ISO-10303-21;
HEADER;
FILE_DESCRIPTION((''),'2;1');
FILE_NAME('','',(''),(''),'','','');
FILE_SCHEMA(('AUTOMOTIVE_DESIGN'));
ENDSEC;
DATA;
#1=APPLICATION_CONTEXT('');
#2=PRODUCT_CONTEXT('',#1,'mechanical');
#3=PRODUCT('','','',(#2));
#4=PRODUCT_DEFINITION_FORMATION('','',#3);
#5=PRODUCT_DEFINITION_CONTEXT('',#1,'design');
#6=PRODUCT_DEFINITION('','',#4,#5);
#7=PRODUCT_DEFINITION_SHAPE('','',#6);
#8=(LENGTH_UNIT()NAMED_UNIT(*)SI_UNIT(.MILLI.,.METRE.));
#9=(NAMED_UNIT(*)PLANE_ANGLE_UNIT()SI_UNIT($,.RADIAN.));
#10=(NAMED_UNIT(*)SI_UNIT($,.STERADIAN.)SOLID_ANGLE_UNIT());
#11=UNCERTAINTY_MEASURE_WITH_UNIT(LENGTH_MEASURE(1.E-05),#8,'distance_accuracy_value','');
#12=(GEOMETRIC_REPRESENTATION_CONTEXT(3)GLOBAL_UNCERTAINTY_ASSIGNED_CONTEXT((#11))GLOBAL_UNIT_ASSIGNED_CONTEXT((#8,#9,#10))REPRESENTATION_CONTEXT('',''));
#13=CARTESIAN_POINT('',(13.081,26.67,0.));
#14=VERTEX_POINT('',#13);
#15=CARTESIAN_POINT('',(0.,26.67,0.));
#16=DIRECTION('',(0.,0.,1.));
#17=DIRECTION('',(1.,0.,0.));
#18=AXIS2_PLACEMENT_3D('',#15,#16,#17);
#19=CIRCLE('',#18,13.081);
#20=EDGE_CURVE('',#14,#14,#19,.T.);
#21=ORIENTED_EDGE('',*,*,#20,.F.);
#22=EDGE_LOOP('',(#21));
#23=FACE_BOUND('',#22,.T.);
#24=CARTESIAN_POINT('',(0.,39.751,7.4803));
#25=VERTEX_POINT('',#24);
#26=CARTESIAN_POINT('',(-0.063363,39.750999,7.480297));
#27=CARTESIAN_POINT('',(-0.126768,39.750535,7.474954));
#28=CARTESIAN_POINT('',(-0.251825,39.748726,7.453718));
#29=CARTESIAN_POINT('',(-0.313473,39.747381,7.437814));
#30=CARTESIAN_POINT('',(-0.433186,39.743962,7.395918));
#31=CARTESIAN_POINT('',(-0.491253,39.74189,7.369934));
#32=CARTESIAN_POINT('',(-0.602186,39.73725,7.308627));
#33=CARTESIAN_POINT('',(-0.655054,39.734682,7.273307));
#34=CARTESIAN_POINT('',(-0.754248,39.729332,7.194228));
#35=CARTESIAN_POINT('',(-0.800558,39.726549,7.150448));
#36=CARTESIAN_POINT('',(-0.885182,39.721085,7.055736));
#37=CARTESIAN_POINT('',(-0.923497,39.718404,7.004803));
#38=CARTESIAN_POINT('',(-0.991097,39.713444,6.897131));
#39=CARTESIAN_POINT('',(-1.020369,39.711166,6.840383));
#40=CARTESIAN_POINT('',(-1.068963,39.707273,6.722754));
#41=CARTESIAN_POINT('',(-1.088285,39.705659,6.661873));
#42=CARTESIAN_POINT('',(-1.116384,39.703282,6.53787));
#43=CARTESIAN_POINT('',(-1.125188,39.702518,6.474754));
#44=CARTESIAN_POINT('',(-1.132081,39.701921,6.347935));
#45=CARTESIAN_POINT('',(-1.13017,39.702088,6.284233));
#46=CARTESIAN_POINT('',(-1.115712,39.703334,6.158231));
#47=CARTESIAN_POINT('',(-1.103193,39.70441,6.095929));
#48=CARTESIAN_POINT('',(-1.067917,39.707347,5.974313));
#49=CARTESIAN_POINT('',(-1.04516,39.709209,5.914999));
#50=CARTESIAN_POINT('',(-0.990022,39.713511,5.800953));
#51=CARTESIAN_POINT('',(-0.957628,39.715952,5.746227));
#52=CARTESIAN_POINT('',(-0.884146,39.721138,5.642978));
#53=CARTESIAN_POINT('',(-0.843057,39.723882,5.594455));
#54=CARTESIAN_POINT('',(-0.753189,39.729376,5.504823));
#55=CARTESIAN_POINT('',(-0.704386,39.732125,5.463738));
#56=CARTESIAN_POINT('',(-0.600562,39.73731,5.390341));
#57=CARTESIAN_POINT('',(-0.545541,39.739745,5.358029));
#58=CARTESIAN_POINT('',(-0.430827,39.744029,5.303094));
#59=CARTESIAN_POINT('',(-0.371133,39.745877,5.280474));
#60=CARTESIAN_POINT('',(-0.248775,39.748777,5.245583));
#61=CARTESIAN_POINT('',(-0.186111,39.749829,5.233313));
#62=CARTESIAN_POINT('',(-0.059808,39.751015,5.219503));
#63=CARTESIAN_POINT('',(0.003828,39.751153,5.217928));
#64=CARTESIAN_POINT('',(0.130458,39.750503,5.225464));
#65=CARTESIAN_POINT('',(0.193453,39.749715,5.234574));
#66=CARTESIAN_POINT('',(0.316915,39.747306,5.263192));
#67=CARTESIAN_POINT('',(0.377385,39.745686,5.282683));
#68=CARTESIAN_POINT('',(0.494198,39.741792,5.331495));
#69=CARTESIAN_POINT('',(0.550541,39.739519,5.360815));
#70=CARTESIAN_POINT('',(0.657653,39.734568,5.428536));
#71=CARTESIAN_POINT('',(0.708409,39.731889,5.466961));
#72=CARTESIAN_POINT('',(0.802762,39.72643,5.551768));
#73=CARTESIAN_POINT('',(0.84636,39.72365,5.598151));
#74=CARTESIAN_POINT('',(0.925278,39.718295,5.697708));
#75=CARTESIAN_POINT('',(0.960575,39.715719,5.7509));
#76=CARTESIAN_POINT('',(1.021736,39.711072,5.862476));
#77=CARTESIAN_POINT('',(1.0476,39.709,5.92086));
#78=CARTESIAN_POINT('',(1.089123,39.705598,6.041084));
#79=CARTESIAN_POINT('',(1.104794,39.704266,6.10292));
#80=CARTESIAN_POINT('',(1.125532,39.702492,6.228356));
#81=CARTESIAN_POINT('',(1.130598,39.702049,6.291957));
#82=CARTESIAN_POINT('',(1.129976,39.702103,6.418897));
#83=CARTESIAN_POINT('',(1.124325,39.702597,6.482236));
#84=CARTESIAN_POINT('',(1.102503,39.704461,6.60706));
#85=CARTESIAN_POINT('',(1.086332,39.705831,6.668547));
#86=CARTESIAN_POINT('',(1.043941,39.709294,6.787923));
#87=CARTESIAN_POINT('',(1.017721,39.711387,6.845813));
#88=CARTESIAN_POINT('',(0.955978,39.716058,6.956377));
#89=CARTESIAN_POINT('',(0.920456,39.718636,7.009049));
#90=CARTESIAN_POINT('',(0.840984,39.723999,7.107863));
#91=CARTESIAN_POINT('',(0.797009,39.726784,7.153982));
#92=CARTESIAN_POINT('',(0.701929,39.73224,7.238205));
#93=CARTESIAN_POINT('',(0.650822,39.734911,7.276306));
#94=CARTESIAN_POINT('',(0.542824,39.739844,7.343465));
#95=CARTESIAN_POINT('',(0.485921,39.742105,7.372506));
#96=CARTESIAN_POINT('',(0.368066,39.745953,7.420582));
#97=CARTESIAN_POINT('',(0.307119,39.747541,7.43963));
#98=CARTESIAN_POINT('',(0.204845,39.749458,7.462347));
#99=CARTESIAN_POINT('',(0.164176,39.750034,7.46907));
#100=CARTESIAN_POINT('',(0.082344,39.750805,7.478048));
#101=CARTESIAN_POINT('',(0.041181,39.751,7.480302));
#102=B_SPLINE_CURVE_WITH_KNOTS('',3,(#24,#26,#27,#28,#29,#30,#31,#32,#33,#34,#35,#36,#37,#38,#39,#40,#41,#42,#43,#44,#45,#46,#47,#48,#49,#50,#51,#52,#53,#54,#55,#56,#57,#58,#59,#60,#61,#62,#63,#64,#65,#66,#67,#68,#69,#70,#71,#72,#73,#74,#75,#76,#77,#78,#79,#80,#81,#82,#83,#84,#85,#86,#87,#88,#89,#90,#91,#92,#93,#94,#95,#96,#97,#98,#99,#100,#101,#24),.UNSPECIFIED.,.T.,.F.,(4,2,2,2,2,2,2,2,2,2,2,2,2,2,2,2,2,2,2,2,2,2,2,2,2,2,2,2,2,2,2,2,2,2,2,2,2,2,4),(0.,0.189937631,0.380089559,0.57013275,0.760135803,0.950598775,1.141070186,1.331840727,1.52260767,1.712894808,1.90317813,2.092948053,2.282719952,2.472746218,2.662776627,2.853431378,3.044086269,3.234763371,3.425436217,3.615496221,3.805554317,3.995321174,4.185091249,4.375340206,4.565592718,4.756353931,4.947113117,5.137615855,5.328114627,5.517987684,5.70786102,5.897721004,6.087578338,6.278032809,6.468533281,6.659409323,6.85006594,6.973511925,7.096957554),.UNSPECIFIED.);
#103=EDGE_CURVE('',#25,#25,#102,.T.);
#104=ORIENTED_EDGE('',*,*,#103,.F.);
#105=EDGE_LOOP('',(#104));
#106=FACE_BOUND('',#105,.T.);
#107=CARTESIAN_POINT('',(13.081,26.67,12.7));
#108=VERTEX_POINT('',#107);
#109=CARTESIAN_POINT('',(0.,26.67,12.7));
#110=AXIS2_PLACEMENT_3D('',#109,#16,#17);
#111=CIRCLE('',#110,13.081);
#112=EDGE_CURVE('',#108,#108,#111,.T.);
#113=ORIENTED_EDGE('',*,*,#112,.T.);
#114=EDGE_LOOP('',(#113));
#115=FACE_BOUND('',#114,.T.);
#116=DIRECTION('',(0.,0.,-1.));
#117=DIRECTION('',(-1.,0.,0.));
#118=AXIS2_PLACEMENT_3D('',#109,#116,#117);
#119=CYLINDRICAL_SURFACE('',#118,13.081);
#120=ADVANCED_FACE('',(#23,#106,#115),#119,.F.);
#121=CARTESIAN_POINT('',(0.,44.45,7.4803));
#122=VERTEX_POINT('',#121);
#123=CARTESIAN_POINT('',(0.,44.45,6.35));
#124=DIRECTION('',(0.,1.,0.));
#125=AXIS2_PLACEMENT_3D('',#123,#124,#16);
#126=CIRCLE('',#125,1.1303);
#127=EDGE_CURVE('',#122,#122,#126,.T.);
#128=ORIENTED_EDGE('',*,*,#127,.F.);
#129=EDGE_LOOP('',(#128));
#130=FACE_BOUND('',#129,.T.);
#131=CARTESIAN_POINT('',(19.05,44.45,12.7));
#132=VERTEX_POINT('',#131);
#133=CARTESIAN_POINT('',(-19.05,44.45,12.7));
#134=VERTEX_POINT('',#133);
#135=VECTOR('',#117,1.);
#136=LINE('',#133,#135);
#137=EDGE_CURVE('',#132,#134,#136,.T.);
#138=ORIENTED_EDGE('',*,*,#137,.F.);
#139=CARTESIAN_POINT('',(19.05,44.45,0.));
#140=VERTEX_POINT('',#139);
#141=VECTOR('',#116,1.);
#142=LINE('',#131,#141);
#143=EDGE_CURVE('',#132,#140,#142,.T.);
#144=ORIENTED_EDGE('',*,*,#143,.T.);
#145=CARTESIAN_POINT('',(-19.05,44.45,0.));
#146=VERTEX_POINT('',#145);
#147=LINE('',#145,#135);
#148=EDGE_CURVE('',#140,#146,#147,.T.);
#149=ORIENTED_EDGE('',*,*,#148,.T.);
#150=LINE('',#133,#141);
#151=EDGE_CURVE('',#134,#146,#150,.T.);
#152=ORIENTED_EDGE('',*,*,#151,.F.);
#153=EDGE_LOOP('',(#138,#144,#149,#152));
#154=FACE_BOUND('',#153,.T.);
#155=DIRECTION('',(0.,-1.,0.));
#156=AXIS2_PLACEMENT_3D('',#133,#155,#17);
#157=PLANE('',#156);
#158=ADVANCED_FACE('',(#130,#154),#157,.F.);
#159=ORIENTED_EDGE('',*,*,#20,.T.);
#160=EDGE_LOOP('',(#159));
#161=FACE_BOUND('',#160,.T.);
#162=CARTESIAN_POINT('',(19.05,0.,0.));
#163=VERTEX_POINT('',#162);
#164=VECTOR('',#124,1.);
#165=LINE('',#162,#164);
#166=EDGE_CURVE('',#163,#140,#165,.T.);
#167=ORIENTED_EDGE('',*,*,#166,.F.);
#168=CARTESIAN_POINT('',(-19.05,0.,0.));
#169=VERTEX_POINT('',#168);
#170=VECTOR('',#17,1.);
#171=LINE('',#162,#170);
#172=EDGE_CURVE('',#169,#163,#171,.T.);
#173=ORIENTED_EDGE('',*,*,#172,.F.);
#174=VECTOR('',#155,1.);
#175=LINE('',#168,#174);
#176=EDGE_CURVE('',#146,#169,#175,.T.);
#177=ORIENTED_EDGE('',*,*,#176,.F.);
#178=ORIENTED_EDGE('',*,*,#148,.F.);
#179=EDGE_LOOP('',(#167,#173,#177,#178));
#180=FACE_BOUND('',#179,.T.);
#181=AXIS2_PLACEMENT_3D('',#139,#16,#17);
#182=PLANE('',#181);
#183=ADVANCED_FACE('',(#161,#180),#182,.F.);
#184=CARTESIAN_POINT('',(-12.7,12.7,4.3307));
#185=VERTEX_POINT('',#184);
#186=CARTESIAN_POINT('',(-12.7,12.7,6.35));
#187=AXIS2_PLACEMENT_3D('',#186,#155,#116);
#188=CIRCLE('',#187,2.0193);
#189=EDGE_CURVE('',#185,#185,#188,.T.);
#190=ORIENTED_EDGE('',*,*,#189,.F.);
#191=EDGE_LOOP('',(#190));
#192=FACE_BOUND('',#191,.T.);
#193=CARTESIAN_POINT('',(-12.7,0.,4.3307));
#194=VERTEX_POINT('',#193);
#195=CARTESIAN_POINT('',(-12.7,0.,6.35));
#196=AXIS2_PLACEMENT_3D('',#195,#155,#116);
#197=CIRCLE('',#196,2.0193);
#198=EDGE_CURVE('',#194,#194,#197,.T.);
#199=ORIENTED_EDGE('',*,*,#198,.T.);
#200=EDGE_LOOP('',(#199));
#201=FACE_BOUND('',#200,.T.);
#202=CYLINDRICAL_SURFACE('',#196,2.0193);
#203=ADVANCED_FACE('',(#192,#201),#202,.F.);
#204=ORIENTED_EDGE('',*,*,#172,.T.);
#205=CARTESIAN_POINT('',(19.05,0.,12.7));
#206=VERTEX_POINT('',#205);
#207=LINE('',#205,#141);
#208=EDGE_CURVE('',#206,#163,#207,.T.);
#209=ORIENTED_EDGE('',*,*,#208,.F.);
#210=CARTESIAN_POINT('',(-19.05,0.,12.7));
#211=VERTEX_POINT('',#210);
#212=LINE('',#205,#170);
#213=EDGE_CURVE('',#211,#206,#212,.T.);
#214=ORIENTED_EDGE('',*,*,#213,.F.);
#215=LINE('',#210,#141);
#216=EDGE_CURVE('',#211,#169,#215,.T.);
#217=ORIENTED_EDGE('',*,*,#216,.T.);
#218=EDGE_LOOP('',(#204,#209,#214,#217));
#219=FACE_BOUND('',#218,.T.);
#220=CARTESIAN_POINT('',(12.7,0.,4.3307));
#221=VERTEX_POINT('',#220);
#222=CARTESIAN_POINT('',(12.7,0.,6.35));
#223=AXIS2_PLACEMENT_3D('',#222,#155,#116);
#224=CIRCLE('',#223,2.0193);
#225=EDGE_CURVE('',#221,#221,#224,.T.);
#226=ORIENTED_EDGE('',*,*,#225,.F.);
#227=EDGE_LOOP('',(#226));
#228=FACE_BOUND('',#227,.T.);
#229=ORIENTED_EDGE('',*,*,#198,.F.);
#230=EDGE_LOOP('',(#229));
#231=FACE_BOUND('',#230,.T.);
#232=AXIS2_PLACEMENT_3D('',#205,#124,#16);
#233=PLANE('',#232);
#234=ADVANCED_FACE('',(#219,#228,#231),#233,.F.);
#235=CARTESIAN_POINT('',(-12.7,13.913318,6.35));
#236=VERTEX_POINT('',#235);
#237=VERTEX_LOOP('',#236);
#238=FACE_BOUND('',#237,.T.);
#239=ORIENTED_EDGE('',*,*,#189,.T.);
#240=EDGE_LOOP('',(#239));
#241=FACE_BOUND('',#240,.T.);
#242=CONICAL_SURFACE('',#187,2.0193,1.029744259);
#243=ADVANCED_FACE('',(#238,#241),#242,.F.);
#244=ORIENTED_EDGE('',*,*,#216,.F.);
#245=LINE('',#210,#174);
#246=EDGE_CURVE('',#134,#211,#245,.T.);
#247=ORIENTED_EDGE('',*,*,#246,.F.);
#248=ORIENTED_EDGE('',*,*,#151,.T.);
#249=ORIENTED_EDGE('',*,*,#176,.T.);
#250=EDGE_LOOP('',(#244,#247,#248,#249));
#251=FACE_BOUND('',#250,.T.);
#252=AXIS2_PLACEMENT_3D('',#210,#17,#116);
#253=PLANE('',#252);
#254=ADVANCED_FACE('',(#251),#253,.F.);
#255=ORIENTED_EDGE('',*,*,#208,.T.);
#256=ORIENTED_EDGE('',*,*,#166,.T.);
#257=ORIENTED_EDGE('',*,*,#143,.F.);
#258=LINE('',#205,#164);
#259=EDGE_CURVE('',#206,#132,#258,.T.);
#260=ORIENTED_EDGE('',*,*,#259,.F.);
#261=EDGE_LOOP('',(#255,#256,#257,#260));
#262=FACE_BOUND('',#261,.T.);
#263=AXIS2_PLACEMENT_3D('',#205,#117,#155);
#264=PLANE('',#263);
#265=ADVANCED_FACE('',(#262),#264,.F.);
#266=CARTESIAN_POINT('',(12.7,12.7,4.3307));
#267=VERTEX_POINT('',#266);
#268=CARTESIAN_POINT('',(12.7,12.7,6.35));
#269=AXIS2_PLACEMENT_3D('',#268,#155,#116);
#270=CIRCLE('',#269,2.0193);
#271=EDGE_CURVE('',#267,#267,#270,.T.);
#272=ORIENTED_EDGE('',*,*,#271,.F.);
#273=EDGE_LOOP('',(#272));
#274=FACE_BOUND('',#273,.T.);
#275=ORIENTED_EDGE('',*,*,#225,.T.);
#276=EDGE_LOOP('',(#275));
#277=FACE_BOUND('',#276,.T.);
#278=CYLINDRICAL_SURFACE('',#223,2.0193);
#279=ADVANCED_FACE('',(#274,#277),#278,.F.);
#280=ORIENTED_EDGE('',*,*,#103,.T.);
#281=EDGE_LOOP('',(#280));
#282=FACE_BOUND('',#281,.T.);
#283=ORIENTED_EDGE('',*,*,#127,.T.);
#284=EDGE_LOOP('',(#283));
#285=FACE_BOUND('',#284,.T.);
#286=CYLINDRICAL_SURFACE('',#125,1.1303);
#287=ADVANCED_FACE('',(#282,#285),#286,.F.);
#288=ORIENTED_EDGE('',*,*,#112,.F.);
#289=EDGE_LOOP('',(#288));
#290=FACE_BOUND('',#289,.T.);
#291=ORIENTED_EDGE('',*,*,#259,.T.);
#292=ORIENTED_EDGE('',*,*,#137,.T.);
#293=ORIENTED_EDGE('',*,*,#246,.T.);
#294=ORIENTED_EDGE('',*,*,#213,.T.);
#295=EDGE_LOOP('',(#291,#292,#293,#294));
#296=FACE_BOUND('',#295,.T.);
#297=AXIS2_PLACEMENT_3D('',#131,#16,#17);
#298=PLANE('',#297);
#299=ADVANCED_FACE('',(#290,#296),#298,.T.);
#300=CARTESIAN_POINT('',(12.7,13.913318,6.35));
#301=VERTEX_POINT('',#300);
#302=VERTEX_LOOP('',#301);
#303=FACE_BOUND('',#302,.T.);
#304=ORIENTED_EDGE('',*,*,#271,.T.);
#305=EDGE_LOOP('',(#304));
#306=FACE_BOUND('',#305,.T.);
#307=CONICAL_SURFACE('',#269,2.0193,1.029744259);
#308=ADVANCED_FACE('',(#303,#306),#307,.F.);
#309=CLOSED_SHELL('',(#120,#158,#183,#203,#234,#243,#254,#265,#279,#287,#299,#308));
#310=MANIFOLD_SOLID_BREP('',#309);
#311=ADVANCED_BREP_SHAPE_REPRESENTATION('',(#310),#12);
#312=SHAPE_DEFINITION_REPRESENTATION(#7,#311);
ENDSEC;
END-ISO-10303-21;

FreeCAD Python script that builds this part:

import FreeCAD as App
import Part
import Sketcher
Q = App.Units.Quantity


def add_polygon(sketch, points):
    """Adds a closed chain of lines whose ends are joined by coincident constraints."""
    first, n = sketch.GeometryCount, len(points)
    for a, b in zip(points, points[1:] + points[:1]):
        sketch.addGeometry(Part.LineSegment(App.Vector(*a, 0), App.Vector(*b, 0)), False)
    for i in range(n):
        sketch.addConstraint(Sketcher.Constraint("Coincident", first + i, 2, first + (i + 1) % n, 1))

doc = App.newDocument("Part")
body = doc.addObject("PartDesign::Body", "Body")

# Sketch on XY plane
sketch1 = body.newObject("Sketcher::SketchObject", "Sketch")
sketch1.AttachmentSupport = (doc.getObject("XY_Plane"), [""])
sketch1.MapMode = "FlatFace"
add_polygon(sketch1, [(-19.05, 44.45), (-19.05, 0), (19.05, 0), (19.05, 44.45)])  # lines 0-3
sketch1.addGeometry(Part.Circle(App.Vector(0, 26.67, 0), App.Vector(0, 0, 1), 13.081), False)  # 4
sketch1.addConstraint(Sketcher.Constraint("Vertical", 0))
sketch1.addConstraint(Sketcher.Constraint("Horizontal", 1))
sketch1.addConstraint(Sketcher.Constraint("Vertical", 2))
sketch1.addConstraint(Sketcher.Constraint("Horizontal", 3))
sketch1.addConstraint(Sketcher.Constraint("Symmetric", 0, 2, 1, 2, -1, 1))
sketch1.addConstraint(Sketcher.Constraint("PointOnObject", 4, 3, -2))
sketch1.addConstraint(Sketcher.Constraint("Diameter", 4, Q("1.03 in")))
sketch1.addConstraint(Sketcher.Constraint("DistanceX", 1, 1, 1, 2, Q("1.5 in")))
sketch1.addConstraint(Sketcher.Constraint("DistanceY", 0, 2, 0, 1, Q("1.75 in")))
sketch1.addConstraint(Sketcher.Constraint("DistanceY", 4, 3, 2, 2, Q("0.7 in")))
pad1 = body.newObject("PartDesign::Pad", "Pad")
pad1.Profile = sketch1
pad1.Length = Q("0.5 in")

# Sketch on XZ plane
sketch2 = body.newObject("Sketcher::SketchObject", "Sketch001")
sketch2.AttachmentSupport = (doc.getObject("XZ_Plane"), [""])
sketch2.MapMode = "FlatFace"
sketch2.AttachmentOffset = App.Placement(App.Vector(0, 0, -1.75 * 25.4), App.Rotation())
sketch2.addGeometry(Part.Circle(App.Vector(0, 6.35, 0), App.Vector(0, 0, 1), 1.1303), False)
sketch2.addConstraint(Sketcher.Constraint("PointOnObject", 0, 3, -2))
sketch2.addConstraint(Sketcher.Constraint("Diameter", 0, Q("0.089 in")))
sketch2.addConstraint(Sketcher.Constraint("DistanceY", -1, 1, 0, 3, Q("0.25 in")))
doc.recompute()
hole = body.newObject("PartDesign::Hole", "Hole")
hole.Profile = sketch2
hole.ThreadType = "None"
hole.Diameter = Q("0.089 in")
hole.DepthType = "Dimension"
hole.Depth = 17.779
hole.DrillPoint = "Angled"
hole.DrillPointAngle = 118
hole.Reversed = True

# Sketch on XZ plane
sketch3 = body.newObject("Sketcher::SketchObject", "Sketch002")
sketch3.AttachmentSupport = (doc.getObject("XZ_Plane"), [""])
sketch3.MapMode = "FlatFace"
sketch3.addGeometry(Part.Circle(App.Vector(-12.7, 6.35, 0), App.Vector(0, 0, 1), 2.0193), False)
sketch3.addGeometry(Part.Circle(App.Vector(12.7, 6.35, 0), App.Vector(0, 0, 1), 2.0193), False)
sketch3.addConstraint(Sketcher.Constraint("Equal", 0, 1))
sketch3.addConstraint(Sketcher.Constraint("Symmetric", 0, 3, 1, 3, -2))
sketch3.addConstraint(Sketcher.Constraint("Diameter", 0, Q("0.159 in")))
sketch3.addConstraint(Sketcher.Constraint("DistanceX", 0, 3, 1, 3, Q("1 in")))
sketch3.addConstraint(Sketcher.Constraint("DistanceY", -1, 1, 0, 3, Q("0.25 in")))
doc.recompute()
hole2 = body.newObject("PartDesign::Hole", "Hole001")
hole2.Profile = sketch3
hole2.ThreadType = "None"
hole2.Diameter = Q("0.159 in")
hole2.DepthType = "Dimension"
hole2.Depth = Q("0.5 in")
hole2.DrillPoint = "Angled"
hole2.DrillPointAngle = 118

doc.recompute()
